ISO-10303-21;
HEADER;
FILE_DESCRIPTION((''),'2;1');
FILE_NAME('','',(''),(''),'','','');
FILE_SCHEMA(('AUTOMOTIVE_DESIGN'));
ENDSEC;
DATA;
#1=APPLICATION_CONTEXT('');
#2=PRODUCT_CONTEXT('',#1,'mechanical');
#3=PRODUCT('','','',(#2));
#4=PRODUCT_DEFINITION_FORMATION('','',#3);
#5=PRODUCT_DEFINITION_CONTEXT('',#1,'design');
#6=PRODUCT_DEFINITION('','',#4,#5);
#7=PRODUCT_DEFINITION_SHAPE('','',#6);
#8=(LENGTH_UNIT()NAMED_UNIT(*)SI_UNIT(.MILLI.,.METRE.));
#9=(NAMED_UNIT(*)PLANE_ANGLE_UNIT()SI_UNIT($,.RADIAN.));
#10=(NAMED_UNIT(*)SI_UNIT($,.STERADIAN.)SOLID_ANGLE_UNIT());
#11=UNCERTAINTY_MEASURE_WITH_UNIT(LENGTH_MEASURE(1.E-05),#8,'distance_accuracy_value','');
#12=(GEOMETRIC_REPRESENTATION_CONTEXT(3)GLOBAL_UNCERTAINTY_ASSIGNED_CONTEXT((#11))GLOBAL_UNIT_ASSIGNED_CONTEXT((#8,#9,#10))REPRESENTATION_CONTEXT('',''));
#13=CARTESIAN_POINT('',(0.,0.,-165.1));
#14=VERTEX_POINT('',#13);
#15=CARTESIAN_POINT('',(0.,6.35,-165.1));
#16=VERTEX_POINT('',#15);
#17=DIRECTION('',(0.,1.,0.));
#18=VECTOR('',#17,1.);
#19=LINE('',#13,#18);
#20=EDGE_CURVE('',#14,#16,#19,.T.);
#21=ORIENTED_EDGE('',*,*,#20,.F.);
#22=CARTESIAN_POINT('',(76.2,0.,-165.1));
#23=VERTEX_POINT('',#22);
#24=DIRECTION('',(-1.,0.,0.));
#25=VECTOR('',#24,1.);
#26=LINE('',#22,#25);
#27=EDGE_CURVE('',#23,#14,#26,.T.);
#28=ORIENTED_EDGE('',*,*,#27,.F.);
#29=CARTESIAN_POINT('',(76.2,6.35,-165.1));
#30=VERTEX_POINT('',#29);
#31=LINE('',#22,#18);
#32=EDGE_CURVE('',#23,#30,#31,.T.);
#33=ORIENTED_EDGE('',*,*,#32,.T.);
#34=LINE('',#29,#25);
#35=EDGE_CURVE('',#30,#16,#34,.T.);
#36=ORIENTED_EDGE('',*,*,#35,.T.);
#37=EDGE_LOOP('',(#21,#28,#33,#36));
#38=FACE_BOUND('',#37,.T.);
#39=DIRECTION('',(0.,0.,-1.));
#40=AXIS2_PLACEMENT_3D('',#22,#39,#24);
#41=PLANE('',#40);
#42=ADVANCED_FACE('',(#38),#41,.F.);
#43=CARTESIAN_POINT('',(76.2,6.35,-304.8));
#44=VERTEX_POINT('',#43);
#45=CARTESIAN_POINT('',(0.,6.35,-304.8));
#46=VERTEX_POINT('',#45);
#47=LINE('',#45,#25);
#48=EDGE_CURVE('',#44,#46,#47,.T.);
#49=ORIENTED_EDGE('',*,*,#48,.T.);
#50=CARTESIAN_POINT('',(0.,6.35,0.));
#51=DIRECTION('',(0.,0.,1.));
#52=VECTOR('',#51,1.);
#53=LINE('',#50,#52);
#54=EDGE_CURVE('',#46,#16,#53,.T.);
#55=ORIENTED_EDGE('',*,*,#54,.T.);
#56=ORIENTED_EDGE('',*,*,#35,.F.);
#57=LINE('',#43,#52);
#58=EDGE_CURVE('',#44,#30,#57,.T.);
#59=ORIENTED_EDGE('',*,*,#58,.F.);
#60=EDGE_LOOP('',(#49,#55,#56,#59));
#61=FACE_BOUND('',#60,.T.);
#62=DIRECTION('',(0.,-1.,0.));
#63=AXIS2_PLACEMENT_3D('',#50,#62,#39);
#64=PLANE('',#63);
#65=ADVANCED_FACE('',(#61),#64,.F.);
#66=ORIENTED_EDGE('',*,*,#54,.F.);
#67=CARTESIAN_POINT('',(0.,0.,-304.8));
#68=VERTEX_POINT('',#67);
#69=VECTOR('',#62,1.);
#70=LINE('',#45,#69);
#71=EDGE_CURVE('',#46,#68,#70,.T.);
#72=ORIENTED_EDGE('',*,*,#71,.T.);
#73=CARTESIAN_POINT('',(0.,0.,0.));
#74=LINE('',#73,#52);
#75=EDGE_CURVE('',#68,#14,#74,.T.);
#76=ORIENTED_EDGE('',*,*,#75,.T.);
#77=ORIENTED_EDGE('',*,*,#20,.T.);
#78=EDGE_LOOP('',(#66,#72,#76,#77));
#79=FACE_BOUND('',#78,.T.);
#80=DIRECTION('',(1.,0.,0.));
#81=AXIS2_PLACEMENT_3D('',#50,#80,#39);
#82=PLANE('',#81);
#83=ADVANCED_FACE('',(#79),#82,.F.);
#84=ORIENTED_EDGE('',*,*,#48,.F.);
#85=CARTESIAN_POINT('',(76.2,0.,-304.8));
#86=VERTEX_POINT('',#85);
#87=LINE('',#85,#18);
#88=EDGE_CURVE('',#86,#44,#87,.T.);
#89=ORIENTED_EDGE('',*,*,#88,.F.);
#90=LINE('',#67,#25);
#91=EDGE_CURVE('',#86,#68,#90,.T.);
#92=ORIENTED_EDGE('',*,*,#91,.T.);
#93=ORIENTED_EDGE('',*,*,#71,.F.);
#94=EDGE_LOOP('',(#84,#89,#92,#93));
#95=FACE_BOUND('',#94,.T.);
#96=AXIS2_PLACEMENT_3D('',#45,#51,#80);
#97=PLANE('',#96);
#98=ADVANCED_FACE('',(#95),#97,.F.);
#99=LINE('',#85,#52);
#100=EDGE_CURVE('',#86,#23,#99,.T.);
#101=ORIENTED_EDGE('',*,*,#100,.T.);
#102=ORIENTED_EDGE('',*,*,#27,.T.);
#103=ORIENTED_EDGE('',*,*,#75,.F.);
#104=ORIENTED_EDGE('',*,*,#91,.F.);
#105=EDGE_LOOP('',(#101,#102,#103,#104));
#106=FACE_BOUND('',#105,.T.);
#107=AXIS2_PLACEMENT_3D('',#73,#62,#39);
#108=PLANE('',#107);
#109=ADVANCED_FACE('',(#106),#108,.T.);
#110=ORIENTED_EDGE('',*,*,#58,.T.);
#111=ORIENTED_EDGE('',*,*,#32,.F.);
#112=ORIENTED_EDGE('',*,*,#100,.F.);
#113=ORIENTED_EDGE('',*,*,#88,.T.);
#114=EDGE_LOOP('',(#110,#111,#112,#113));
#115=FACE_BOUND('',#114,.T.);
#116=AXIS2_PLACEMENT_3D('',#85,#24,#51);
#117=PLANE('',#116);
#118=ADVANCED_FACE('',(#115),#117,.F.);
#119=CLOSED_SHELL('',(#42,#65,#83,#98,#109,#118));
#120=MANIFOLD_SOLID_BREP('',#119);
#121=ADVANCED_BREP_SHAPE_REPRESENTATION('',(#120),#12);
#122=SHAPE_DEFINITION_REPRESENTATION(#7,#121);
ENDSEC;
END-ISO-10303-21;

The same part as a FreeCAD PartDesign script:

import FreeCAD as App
import Part
import Sketcher
from FreeCAD import Vector
Q = App.Units.Quantity


def add_polygon(sketch, points):
    """Adds a closed chain of lines whose ends are joined by coincident constraints."""
    first, n = sketch.GeometryCount, len(points)
    for a, b in zip(points, points[1:] + points[:1]):
        sketch.addGeometry(Part.LineSegment(App.Vector(*a, 0), App.Vector(*b, 0)), False)
    for i in range(n):
        sketch.addConstraint(Sketcher.Constraint("Coincident", first + i, 2, first + (i + 1) % n, 1))

doc = App.newDocument("Part")
body = doc.addObject("PartDesign::Body", "Body")

sketch1 = body.newObject("Sketcher::SketchObject", "Sketch")
sketch1.AttachmentSupport = (doc.getObject("XZ_Plane"), [""])
sketch1.MapMode = "FlatFace"
add_polygon(sketch1, [(0, -304.8), (0, 0), (304.8, 0), (304.8, -304.8)])
sketch1.addConstraint([
    Sketcher.Constraint("Vertical", 0),
    Sketcher.Constraint("Horizontal", 1),
    Sketcher.Constraint("Vertical", 2),
    Sketcher.Constraint("Horizontal", 3),
    Sketcher.Constraint("Coincident", 0, 2, -1, 1),
    Sketcher.Constraint("Equal", 3, 0),
    Sketcher.Constraint("DistanceX", 1, 1, 1, 2, Q("12 in")),
])
pad1 = body.newObject("PartDesign::Pad", "Pad")
pad1.Profile = sketch1
pad1.Length = Q("0.25 in")
pad1.Reversed = True

sketch2 = body.newObject("Sketcher::SketchObject", "Sketch001")
sketch2.AttachmentSupport = (doc.getObject("XZ_Plane"), [""])
sketch2.MapMode = "FlatFace"
sketch2.AttachmentOffset = App.Placement(Vector(0, 0, -0.25 * 25.4), App.Rotation())
add_polygon(sketch2, [(76.2, -304.8), (76.2, -165.1), (0, -165.1), (0, 0), (304.8, 0), (304.8, -304.8)])
sketch2.addConstraint([
    Sketcher.Constraint("Vertical", 0),
    Sketcher.Constraint("Horizontal", 1),
    Sketcher.Constraint("Vertical", 2),
    Sketcher.Constraint("Horizontal", 3),
    Sketcher.Constraint("Vertical", 4),
    Sketcher.Constraint("Horizontal", 5),
    Sketcher.Constraint("Coincident", 2, 2, -1, 1),
    Sketcher.Constraint("Equal", 3, 4),
    Sketcher.Constraint("DistanceX", 1, 2, 1, 1, Q("3 in")),
    Sketcher.Constraint("DistanceX", 3, 1, 3, 2, Q("12 in")),
    Sketcher.Constraint("DistanceY", 0, 1, 0, 2, Q("5.5 in")),
])
pocket1 = body.newObject("PartDesign::Pocket", "Pocket")
pocket1.Profile = sketch2
pocket1.Length = Q("0.25 in")
pocket1.Reversed = True

doc.recompute()
